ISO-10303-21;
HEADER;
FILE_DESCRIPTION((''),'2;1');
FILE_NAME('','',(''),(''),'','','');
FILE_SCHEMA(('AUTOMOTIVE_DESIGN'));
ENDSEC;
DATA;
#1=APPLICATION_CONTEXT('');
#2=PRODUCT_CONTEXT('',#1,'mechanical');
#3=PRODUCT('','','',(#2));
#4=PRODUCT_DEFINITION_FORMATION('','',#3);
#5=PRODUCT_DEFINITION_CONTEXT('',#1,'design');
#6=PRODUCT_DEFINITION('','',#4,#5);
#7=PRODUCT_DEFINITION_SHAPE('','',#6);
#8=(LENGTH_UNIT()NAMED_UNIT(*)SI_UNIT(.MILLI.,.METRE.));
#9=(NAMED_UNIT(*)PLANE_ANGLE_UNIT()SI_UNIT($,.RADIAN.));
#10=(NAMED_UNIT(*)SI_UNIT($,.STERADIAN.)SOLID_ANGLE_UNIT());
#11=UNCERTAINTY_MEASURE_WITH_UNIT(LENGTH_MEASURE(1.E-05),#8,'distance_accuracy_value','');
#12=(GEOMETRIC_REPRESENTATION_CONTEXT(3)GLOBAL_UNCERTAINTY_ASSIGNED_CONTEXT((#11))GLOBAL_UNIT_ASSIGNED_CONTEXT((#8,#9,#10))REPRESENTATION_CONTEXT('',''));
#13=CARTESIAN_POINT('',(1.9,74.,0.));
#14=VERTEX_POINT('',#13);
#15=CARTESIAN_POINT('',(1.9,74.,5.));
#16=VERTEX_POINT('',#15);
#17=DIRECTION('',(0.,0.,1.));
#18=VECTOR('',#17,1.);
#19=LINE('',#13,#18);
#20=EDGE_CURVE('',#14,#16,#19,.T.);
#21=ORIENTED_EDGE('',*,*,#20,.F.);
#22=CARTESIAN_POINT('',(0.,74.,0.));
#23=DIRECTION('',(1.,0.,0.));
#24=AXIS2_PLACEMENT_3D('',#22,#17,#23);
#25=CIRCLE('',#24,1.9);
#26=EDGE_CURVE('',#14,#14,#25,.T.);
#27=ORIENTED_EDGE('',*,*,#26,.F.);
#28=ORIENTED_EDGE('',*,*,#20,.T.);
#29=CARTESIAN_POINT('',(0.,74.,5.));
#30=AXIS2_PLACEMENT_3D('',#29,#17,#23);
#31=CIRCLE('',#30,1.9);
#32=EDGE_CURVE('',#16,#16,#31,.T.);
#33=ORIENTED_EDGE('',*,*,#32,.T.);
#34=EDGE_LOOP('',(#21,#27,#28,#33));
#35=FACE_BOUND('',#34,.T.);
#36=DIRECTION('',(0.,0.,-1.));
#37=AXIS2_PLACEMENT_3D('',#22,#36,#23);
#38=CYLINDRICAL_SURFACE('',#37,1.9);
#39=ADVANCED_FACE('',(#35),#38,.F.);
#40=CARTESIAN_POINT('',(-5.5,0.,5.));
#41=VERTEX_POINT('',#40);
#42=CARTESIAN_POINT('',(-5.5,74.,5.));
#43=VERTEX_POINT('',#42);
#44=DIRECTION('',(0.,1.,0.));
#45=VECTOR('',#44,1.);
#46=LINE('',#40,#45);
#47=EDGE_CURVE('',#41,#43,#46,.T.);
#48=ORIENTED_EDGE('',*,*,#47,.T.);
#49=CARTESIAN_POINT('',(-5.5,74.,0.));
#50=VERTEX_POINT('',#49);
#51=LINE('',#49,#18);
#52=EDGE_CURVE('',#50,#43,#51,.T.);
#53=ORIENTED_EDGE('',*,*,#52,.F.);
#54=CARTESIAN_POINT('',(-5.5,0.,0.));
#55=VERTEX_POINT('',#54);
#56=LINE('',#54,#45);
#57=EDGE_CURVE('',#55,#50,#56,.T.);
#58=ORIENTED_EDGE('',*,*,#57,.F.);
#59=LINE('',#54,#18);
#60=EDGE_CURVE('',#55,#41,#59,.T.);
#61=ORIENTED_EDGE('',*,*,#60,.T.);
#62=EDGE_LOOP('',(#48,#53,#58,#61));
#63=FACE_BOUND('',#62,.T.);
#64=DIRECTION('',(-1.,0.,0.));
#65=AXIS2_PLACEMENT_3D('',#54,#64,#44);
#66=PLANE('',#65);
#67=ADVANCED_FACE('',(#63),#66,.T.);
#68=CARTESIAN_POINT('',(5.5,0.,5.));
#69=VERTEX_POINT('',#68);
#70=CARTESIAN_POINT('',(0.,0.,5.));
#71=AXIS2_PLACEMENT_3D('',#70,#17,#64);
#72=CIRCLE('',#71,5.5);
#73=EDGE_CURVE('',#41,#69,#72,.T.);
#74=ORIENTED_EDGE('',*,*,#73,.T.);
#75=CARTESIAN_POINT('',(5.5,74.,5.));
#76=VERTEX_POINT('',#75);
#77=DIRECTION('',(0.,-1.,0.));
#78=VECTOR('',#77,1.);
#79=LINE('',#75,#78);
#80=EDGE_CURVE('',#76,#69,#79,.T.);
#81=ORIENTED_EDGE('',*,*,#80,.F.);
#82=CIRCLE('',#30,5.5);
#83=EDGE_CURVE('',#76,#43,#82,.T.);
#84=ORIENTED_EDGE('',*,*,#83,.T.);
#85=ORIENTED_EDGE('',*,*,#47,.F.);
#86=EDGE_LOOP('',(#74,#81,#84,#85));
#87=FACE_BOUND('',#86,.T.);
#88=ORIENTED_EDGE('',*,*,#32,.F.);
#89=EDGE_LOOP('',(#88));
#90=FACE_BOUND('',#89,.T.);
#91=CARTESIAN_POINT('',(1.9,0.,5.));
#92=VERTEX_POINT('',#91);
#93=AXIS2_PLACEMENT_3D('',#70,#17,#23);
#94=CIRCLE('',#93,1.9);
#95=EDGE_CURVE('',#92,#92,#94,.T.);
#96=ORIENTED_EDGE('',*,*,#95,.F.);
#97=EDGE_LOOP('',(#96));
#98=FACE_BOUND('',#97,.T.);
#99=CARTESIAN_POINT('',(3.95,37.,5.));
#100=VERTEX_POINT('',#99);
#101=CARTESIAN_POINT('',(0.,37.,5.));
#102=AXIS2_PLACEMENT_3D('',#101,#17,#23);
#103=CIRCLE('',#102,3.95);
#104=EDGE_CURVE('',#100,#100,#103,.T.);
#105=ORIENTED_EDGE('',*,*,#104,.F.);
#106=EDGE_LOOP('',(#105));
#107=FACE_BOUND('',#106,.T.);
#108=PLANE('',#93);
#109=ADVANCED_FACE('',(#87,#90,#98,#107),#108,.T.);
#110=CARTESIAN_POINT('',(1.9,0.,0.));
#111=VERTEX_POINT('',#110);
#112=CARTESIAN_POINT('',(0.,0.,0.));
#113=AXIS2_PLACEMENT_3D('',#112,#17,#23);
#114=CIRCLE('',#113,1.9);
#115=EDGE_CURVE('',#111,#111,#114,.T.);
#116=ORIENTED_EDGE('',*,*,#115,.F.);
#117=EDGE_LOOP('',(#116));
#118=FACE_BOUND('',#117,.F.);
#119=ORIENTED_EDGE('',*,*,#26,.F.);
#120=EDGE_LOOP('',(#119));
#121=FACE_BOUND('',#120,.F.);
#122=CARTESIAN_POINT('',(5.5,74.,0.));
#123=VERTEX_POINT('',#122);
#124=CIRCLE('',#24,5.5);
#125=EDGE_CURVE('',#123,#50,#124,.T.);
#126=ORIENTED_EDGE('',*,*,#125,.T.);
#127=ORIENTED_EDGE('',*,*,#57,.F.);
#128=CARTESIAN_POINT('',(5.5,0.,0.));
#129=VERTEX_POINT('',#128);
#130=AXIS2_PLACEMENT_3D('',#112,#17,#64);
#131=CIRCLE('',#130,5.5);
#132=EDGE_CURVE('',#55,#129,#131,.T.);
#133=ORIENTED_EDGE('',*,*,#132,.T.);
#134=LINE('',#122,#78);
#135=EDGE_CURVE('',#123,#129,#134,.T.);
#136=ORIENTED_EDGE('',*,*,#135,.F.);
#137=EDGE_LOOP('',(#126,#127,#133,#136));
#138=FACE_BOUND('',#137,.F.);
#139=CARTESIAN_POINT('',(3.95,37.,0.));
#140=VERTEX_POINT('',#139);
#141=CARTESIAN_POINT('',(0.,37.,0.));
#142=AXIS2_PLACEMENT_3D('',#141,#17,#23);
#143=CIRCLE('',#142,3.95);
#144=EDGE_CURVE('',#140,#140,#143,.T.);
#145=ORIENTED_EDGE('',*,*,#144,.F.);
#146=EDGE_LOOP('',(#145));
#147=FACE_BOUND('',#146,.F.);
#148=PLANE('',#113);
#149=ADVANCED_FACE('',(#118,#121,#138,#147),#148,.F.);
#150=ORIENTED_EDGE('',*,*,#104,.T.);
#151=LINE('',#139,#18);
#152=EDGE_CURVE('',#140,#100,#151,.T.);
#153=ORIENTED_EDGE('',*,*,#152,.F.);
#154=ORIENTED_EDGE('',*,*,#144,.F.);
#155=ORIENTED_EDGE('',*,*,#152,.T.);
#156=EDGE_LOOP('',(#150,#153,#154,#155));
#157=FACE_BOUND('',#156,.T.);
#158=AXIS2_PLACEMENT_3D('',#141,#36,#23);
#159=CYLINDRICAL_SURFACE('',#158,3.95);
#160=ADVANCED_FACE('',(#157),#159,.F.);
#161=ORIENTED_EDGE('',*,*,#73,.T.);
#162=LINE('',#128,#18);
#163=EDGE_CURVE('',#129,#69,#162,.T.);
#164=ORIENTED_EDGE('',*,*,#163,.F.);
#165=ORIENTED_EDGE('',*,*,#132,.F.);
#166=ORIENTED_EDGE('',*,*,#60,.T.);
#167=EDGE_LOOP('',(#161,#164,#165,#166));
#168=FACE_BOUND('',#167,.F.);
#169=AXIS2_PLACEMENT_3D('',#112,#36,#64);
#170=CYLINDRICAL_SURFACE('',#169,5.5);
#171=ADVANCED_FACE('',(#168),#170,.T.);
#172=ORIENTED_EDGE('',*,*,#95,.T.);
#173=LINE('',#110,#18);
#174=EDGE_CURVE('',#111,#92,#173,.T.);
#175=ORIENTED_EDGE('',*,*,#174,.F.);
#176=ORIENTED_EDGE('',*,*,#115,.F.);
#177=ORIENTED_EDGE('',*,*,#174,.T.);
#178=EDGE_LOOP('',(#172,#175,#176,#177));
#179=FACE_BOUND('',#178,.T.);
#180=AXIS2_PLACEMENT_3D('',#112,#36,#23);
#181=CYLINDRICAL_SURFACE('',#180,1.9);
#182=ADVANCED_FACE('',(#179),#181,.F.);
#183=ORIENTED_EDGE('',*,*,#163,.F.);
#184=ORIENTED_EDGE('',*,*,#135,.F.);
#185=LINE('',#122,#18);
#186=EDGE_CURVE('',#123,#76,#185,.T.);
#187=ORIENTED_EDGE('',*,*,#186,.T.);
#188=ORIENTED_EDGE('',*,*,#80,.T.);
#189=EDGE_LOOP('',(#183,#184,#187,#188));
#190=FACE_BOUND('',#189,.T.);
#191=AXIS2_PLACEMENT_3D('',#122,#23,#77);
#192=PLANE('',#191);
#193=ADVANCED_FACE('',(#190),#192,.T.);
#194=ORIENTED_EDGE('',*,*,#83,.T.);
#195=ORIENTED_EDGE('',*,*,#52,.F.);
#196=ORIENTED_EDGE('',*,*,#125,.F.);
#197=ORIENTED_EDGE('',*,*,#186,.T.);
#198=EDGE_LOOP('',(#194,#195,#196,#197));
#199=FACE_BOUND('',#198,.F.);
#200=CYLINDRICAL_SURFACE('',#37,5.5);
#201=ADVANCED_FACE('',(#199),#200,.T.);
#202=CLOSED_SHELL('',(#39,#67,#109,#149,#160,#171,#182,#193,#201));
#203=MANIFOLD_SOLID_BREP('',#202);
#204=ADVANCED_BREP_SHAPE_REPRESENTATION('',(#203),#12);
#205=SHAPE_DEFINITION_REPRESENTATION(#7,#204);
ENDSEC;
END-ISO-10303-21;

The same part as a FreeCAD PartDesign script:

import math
import FreeCAD as App
import Part
import Sketcher
Q = App.Units.Quantity

doc = App.newDocument("Part")
body = doc.addObject("PartDesign::Body", "Body")

# Sketch on XY plane
sketch1 = body.newObject("Sketcher::SketchObject", "Sketch")
sketch1.AttachmentSupport = (doc.getObject("XY_Plane"), [""])
sketch1.MapMode = "FlatFace"
sketch1.addGeometry(Part.LineSegment(App.Vector(5.5, 0, 0), App.Vector(5.5, 74, 0)), False)
sketch1.addGeometry(Part.ArcOfCircle(Part.Circle(App.Vector(0, 74, 0), App.Vector(0, 0, 1), 5.5), math.radians(0), math.radians(180)), False)
sketch1.addGeometry(Part.LineSegment(App.Vector(-5.5, 74, 0), App.Vector(-5.5, 0, 0)), False)
sketch1.addGeometry(Part.ArcOfCircle(Part.Circle(App.Vector(0, 0, 0), App.Vector(0, 0, 1), 5.5), math.radians(180), math.radians(360)), False)
sketch1.addGeometry(Part.Circle(App.Vector(0, 0, 0), App.Vector(0, 0, 1), 1.9), False)
sketch1.addGeometry(Part.Circle(App.Vector(0, 37, 0), App.Vector(0, 0, 1), 4), False)
sketch1.addGeometry(Part.Circle(App.Vector(0, 74, 0), App.Vector(0, 0, 1), 1.9), False)
sketch1.addConstraint(Sketcher.Constraint("Tangent", 0, 2, 1, 1))
sketch1.addConstraint(Sketcher.Constraint("Tangent", 1, 2, 2, 1))
sketch1.addConstraint(Sketcher.Constraint("Tangent", 2, 2, 3, 1))
sketch1.addConstraint(Sketcher.Constraint("Tangent", 3, 2, 0, 1))
sketch1.addConstraint(Sketcher.Constraint("Vertical", 0))
sketch1.addConstraint(Sketcher.Constraint("Vertical", 2))
sketch1.addConstraint(Sketcher.Constraint("Coincident", 3, 3, -1, 1))
sketch1.addConstraint(Sketcher.Constraint("Coincident", 4, 3, -1, 1))
sketch1.addConstraint(Sketcher.Constraint("Coincident", 6, 3, 1, 3))
sketch1.addConstraint(Sketcher.Constraint("Equal", 4, 6))
sketch1.addConstraint(Sketcher.Constraint("PointOnObject", 5, 3, -2))
sketch1.addConstraint(Sketcher.Constraint("Diameter", 4, Q("3.8 mm")))
sketch1.addConstraint(Sketcher.Constraint("Diameter", 5, Q("7.9 mm")))
sketch1.addConstraint(Sketcher.Constraint("Radius", 1, Q("5.5 mm")))
sketch1.addConstraint(Sketcher.Constraint("DistanceY", 0, 1, 0, 2, Q("74 mm")))
sketch1.addConstraint(Sketcher.Constraint("DistanceY", -1, 1, 5, 3, Q("37 mm")))
pad1 = body.newObject("PartDesign::Pad", "Pad")
pad1.Profile = sketch1
pad1.Length = 5

doc.recompute()
